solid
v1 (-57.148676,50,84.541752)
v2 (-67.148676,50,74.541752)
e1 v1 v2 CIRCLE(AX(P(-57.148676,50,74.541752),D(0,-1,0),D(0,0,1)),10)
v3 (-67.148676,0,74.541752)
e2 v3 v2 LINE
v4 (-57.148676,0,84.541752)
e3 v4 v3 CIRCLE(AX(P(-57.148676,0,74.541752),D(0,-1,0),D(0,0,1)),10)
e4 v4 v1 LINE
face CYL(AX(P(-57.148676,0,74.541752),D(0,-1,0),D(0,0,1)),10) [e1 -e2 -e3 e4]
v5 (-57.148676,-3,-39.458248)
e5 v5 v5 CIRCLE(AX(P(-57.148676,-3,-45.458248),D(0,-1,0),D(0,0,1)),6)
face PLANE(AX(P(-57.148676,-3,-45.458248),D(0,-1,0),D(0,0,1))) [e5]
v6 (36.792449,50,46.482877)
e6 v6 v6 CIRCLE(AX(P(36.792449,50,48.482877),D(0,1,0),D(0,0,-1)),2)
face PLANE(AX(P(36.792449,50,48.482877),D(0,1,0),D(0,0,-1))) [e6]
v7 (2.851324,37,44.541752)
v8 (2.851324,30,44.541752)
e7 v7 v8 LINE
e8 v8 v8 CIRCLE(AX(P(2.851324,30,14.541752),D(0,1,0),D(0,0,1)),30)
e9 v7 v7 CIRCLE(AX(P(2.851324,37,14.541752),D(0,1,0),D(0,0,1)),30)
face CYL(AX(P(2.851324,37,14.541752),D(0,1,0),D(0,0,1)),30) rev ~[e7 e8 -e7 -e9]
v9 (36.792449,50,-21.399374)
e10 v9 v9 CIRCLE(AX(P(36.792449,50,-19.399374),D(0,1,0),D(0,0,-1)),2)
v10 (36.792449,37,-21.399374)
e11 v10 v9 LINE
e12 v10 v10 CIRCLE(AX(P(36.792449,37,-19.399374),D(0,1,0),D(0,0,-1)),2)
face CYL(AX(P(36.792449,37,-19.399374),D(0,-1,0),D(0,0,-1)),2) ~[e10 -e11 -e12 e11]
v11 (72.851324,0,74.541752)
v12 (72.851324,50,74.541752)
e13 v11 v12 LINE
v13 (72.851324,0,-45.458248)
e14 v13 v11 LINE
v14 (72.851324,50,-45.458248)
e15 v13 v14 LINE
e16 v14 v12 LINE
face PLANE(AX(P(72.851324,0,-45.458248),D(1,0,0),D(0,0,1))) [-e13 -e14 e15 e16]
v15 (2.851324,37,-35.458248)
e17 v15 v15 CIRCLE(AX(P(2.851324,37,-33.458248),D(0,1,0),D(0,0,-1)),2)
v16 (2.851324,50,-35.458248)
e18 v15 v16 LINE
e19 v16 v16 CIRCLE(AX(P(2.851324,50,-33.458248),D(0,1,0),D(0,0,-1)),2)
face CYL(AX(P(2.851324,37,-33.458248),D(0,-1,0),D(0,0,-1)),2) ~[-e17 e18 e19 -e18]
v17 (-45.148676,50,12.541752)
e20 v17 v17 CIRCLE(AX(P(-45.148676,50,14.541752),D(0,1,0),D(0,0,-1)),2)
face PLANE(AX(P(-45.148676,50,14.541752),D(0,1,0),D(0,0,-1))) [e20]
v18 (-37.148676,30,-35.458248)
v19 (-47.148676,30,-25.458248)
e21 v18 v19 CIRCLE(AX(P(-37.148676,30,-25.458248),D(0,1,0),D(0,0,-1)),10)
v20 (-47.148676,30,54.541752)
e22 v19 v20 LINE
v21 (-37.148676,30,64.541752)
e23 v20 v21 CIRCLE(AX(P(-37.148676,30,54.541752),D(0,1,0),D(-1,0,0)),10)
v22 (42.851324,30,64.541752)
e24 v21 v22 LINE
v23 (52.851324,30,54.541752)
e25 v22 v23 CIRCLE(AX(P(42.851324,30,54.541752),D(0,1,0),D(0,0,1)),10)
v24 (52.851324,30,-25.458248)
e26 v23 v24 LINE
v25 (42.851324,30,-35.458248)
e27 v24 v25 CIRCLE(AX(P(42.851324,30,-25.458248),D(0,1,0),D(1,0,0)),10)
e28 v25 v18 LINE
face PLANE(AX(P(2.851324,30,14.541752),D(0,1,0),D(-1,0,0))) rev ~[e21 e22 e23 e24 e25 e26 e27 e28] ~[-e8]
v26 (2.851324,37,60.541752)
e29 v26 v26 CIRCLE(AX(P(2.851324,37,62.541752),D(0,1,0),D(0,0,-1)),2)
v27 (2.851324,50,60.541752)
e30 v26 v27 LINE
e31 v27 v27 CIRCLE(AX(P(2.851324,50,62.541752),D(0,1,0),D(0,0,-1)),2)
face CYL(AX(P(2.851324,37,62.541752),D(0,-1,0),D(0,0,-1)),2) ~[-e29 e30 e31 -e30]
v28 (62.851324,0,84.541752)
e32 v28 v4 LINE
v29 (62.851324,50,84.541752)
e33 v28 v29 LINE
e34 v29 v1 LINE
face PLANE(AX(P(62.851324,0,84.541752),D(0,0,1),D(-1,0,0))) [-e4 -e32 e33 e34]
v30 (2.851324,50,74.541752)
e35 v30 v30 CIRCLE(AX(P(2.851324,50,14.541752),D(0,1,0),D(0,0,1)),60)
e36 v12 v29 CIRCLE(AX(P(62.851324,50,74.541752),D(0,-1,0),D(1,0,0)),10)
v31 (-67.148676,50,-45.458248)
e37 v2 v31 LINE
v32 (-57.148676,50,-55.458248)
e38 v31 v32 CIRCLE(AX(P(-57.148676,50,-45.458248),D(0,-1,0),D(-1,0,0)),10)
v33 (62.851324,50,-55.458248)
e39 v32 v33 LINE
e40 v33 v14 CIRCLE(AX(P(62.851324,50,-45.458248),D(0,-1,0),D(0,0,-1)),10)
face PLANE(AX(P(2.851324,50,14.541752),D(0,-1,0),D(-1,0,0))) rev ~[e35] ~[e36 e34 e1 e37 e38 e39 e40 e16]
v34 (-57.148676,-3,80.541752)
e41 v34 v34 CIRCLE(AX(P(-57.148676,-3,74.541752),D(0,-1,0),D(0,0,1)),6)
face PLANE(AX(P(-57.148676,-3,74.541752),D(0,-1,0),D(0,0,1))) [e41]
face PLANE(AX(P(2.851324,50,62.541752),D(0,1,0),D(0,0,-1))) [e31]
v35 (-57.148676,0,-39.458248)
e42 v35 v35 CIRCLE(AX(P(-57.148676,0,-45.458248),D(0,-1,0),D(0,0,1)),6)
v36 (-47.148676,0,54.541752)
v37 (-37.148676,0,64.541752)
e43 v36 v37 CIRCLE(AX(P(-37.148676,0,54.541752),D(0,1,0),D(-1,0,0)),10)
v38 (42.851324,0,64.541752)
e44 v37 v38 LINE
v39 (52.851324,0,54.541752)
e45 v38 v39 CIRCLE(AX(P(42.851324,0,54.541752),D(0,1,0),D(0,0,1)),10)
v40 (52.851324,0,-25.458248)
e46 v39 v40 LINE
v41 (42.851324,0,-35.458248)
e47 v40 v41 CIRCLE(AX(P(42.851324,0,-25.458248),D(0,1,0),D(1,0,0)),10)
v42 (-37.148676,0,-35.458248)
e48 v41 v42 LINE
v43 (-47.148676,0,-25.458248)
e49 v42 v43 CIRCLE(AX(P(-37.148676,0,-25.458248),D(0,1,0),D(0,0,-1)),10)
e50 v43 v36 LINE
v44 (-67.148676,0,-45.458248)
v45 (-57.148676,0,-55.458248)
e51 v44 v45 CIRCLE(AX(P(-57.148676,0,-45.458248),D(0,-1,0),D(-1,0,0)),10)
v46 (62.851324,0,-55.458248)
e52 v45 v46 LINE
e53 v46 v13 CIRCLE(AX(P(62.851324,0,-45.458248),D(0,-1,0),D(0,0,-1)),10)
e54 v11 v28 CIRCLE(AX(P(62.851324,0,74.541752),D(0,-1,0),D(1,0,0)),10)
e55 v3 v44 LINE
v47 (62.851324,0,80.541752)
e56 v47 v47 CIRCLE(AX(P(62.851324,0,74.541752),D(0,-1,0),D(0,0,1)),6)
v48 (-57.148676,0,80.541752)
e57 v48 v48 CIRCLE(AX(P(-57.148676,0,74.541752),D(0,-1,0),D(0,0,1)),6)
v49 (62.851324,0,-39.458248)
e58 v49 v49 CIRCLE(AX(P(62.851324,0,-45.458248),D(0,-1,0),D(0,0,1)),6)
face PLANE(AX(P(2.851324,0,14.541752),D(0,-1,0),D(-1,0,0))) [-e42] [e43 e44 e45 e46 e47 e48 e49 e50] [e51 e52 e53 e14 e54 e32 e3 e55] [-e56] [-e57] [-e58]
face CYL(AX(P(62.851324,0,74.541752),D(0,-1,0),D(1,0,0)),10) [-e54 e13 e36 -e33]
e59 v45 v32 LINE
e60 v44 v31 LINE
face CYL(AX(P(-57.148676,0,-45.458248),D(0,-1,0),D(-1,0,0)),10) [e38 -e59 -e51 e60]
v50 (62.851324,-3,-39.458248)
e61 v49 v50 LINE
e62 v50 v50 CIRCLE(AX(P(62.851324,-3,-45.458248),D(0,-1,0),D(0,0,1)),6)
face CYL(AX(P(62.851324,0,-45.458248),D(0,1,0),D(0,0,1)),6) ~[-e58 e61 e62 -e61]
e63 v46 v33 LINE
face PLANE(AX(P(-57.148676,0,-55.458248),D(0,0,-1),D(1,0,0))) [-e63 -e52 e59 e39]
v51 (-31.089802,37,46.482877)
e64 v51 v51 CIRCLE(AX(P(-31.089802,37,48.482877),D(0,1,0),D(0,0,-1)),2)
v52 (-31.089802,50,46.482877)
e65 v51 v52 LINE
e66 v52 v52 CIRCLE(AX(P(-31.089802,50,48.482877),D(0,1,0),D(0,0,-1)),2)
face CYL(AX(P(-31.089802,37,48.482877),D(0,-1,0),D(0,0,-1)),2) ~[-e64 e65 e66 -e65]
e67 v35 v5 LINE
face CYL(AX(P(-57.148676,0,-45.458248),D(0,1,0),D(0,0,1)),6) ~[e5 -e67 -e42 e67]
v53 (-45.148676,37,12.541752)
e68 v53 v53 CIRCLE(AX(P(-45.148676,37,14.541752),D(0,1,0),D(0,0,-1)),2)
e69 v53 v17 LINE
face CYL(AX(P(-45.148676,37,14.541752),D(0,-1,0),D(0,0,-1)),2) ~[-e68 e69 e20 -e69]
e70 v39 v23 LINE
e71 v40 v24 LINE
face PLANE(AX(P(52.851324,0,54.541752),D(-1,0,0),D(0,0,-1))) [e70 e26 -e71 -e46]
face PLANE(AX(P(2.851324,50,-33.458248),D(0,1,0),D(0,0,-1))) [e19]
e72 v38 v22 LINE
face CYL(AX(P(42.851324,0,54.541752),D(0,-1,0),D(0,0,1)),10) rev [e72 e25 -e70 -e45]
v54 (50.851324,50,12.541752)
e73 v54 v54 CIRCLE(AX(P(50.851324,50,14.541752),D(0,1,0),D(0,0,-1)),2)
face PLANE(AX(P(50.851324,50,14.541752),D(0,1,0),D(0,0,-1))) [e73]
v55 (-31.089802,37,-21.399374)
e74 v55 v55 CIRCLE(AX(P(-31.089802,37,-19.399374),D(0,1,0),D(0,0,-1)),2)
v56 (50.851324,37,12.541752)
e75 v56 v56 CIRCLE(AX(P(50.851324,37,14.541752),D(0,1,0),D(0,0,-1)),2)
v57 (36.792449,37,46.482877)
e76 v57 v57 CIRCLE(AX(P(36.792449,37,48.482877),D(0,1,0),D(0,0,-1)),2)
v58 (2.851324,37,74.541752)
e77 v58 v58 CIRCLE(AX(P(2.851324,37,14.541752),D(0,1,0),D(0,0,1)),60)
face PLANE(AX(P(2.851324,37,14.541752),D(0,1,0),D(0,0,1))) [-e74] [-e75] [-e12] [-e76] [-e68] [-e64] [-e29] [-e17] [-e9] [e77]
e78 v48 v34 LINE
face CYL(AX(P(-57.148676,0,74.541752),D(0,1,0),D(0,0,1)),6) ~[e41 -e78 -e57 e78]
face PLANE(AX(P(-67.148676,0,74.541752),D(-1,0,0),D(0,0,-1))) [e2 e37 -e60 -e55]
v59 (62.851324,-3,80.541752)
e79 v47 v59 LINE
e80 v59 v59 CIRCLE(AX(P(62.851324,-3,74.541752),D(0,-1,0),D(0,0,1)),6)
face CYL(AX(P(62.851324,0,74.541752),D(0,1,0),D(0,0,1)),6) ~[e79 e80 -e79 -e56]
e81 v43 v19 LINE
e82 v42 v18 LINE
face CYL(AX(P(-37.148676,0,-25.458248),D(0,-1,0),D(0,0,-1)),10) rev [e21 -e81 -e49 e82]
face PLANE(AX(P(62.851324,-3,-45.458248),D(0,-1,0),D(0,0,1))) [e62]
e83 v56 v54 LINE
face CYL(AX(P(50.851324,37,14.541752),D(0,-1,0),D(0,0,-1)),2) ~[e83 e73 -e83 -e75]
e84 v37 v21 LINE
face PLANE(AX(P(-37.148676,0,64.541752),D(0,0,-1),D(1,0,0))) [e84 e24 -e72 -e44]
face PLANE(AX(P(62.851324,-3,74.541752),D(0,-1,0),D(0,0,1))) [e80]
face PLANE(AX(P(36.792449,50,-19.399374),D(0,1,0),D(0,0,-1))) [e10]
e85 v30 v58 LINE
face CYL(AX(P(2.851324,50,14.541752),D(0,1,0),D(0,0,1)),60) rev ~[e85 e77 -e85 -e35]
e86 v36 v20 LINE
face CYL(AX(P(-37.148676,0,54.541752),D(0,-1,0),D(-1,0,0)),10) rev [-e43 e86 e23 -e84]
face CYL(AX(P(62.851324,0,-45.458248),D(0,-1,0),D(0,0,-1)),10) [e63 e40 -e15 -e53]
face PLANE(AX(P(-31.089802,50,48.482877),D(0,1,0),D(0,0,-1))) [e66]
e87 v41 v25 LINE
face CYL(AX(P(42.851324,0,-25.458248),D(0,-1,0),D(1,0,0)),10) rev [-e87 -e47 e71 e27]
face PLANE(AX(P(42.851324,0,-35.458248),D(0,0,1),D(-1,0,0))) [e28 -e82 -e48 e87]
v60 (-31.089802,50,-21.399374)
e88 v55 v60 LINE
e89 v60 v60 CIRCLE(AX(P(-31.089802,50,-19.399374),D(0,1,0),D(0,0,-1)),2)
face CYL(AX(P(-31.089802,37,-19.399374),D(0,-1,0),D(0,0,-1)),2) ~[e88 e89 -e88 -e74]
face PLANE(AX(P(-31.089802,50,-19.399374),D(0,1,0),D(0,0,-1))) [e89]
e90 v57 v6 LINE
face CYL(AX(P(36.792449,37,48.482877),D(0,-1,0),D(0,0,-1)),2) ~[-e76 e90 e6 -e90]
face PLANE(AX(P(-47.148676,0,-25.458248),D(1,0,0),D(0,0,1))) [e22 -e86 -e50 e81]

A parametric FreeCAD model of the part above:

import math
import FreeCAD as App
import Part
import Sketcher

V = App.Vector

doc = App.newDocument("Part")
body = doc.addObject("PartDesign::Body", "Body")

sketch1 = body.newObject("Sketcher::SketchObject", "Sketch")
sketch1.AttachmentSupport = (doc.getObject("XZ_Plane"), [""])
sketch1.MapMode = "FlatFace"
sketch1.addGeometry([
    Part.LineSegment(V(63, -55, 0), V(-57, -55, 0)),
    Part.ArcOfCircle(Part.Circle(V(-57, -45, 0), V(0, 0, 1), 10), math.radians(-180), math.radians(-90)),
    Part.LineSegment(V(-67, -45, 0), V(-67, 75, 0)),
    Part.ArcOfCircle(Part.Circle(V(-57, 75, 0), V(0, 0, 1), 10), math.radians(90), math.radians(180)),
    Part.LineSegment(V(-57, 85, 0), V(63, 85, 0)),
    Part.ArcOfCircle(Part.Circle(V(63, 75, 0), V(0, 0, 1), 10), math.radians(0), math.radians(90)),
    Part.LineSegment(V(73, 75, 0), V(73, -45, 0)),
    Part.ArcOfCircle(Part.Circle(V(63, -45, 0), V(0, 0, 1), 10), math.radians(-90), math.radians(0)),
], False)
sketch1.addConstraint([
    Sketcher.Constraint("Tangent", 0, 2, 1, 2),
    Sketcher.Constraint("Tangent", 1, 1, 2, 1),
    Sketcher.Constraint("Tangent", 2, 2, 3, 2),
    Sketcher.Constraint("Tangent", 3, 1, 4, 1),
    Sketcher.Constraint("Tangent", 4, 2, 5, 2),
    Sketcher.Constraint("Tangent", 5, 1, 6, 1),
    Sketcher.Constraint("Tangent", 6, 2, 7, 2),
    Sketcher.Constraint("Tangent", 7, 1, 0, 1),
    Sketcher.Constraint("Horizontal", 0),
    Sketcher.Constraint("Vertical", 2),
    Sketcher.Constraint("Horizontal", 4),
    Sketcher.Constraint("Vertical", 6),
    Sketcher.Constraint("Equal", 1, 3),
    Sketcher.Constraint("Equal", 3, 5),
    Sketcher.Constraint("Equal", 5, 7),
    Sketcher.Constraint("Equal", 4, 2),
    Sketcher.Constraint("Radius", 1, 10.0),
    Sketcher.Constraint("DistanceX", 0, 2, 0, 1, 120.0),
    Sketcher.Constraint("DistanceY", 1, 3, -1, 1, 45.458248),
    Sketcher.Constraint("DistanceX", 1, 3, -1, 1, 57.148676),
])
pad1 = body.newObject("PartDesign::Pad", "Pad")
pad1.Profile = sketch1
pad1.Length = 50
pad1.Reversed = True

sketch2 = body.newObject("Sketcher::SketchObject", "Sketch001")
sketch2.AttachmentSupport = (doc.getObject("XZ_Plane"), [""])
sketch2.MapMode = "FlatFace"
sketch2.AttachmentOffset = App.Placement(V(0, 0, -50), App.Rotation())
sketch2.addGeometry(Part.Circle(V(3, 15, 0), V(0, 0, 1), 60), False)
sketch2.addConstraint([
    Sketcher.Constraint("Diameter", 0, 120.0),
    Sketcher.Constraint("DistanceY", -1, 1, 0, 3, 14.541752),
    Sketcher.Constraint("DistanceX", -1, 1, 0, 3, 2.851324),
])
pocket1 = body.newObject("PartDesign::Pocket", "Pocket")
pocket1.Profile = sketch2
pocket1.Length = 13
pocket1.Reversed = True

sketch3 = body.newObject("Sketcher::SketchObject", "Sketch002")
sketch3.AttachmentSupport = (doc.getObject("XZ_Plane"), [""])
sketch3.MapMode = "FlatFace"
sketch3.AttachmentOffset = App.Placement(V(0, 0, -37), App.Rotation())
sketch3.addGeometry(Part.Circle(V(3, 15, 0), V(0, 0, 1), 10), False)
sketch3.addConstraint([
    Sketcher.Constraint("Diameter", 0, 20.0),
    Sketcher.Constraint("DistanceY", -1, 1, 0, 3, 14.541752),
    Sketcher.Constraint("DistanceX", -1, 1, 0, 3, 2.851324),
])
pocket2 = body.newObject("PartDesign::Pocket", "Pocket001")
pocket2.Profile = sketch3
pocket2.Length = 50
pocket2.Reversed = True

sketch4 = body.newObject("Sketcher::SketchObject", "Sketch003")
sketch4.AttachmentSupport = (doc.getObject("XZ_Plane"), [""])
sketch4.MapMode = "FlatFace"
sketch4.AttachmentOffset = App.Placement(V(0, 0, -37), App.Rotation())
sketch4.addGeometry([
    Part.Circle(V(2.9, -33.5, 0), V(0, 0, 1), 2),
    Part.Circle(V(36.8, -19.4, 0), V(0, 0, 1), 2),
    Part.Circle(V(50.9, 14.5, 0), V(0, 0, 1), 2),
    Part.Circle(V(36.8, 48.5, 0), V(0, 0, 1), 2),
    Part.Circle(V(2.9, 62.5, 0), V(0, 0, 1), 2),
    Part.Circle(V(-31.1, 48.5, 0), V(0, 0, 1), 2),
    Part.Circle(V(-45.1, 14.5, 0), V(0, 0, 1), 2),
    Part.Circle(V(-31.1, -19.4, 0), V(0, 0, 1), 2),
], False)
sketch4.addConstraint([
    Sketcher.Constraint("Equal", 0, 1),
    Sketcher.Constraint("Equal", 1, 2),
    Sketcher.Constraint("Equal", 2, 3),
    Sketcher.Constraint("Equal", 3, 4),
    Sketcher.Constraint("Equal", 4, 5),
    Sketcher.Constraint("Equal", 5, 6),
    Sketcher.Constraint("Equal", 6, 7),
    Sketcher.Constraint("Horizontal", 3, 3, 5, 3),
    Sketcher.Constraint("Horizontal", 2, 3, 6, 3),
    Sketcher.Constraint("Horizontal", 1, 3, 7, 3),
    Sketcher.Constraint("Vertical", 1, 3, 3, 3),
    Sketcher.Constraint("Vertical", 0, 3, 4, 3),
    Sketcher.Constraint("Vertical", 5, 3, 7, 3),
    Sketcher.Constraint("Diameter", 0, 4.0),
    Sketcher.Constraint("DistanceX", 0, 3, 2, 3, 48.0),
    Sketcher.Constraint("DistanceY", 0, 3, 2, 3, 48.0),
    Sketcher.Constraint("DistanceY", 2, 3, 4, 3, 48.0),
    Sketcher.Constraint("DistanceX", 6, 3, 0, 3, 48.0),
    Sketcher.Constraint("DistanceX", 5, 3, -1, 1, 31.089802),
    Sketcher.Constraint("DistanceY", 0, 3, -1, 1, 33.458248),
    Sketcher.Constraint("DistanceX", -1, 1, 1, 3, 36.792449),
    Sketcher.Constraint("DistanceY", 1, 3, 3, 3, 67.882251),
    Sketcher.Constraint("DistanceX", -1, 1, 0, 3, 2.851324),
    Sketcher.Constraint("DistanceY", 1, 3, -1, 1, 19.399374),
])
pad2 = body.newObject("PartDesign::Pad", "Pad001")
pad2.Profile = sketch4
pad2.Length = 13
pad2.Reversed = True

sketch5 = body.newObject("Sketcher::SketchObject", "Sketch004")
sketch5.AttachmentSupport = (doc.getObject("XZ_Plane"), [""])
sketch5.MapMode = "FlatFace"
sketch5.addGeometry([
    Part.LineSegment(V(43, 65, 0), V(-37, 65, 0)),
    Part.ArcOfCircle(Part.Circle(V(-37, 55, 0), V(0, 0, 1), 10), math.radians(90), math.radians(180)),
    Part.LineSegment(V(-47, 55, 0), V(-47, -25, 0)),
    Part.ArcOfCircle(Part.Circle(V(-37, -25, 0), V(0, 0, 1), 10), math.radians(-180), math.radians(-90)),
    Part.LineSegment(V(-37, -35, 0), V(43, -35, 0)),
    Part.ArcOfCircle(Part.Circle(V(43, -25, 0), V(0, 0, 1), 10), math.radians(-90), math.radians(0)),
    Part.LineSegment(V(53, -25, 0), V(53, 55, 0)),
    Part.ArcOfCircle(Part.Circle(V(43, 55, 0), V(0, 0, 1), 10), math.radians(0), math.radians(90)),
], False)
sketch5.addConstraint([
    Sketcher.Constraint("Tangent", 0, 2, 1, 1),
    Sketcher.Constraint("Tangent", 1, 2, 2, 1),
    Sketcher.Constraint("Tangent", 2, 2, 3, 1),
    Sketcher.Constraint("Tangent", 3, 2, 4, 1),
    Sketcher.Constraint("Tangent", 4, 2, 5, 1),
    Sketcher.Constraint("Tangent", 5, 2, 6, 1),
    Sketcher.Constraint("Tangent", 6, 2, 7, 1),
    Sketcher.Constraint("Tangent", 7, 2, 0, 1),
    Sketcher.Constraint("Horizontal", 0),
    Sketcher.Constraint("Vertical", 2),
    Sketcher.Constraint("Horizontal", 4),
    Sketcher.Constraint("Vertical", 6),
    Sketcher.Constraint("Equal", 1, 3),
    Sketcher.Constraint("Equal", 3, 5),
    Sketcher.Constraint("Equal", 5, 7),
    Sketcher.Constraint("Equal", 4, 2),
    Sketcher.Constraint("Radius", 1, 10.0),
    Sketcher.Constraint("DistanceX", 0, 2, 0, 1, 80.0),
    Sketcher.Constraint("DistanceY", -1, 1, 1, 3, 54.541752),
    Sketcher.Constraint("DistanceX", 1, 3, -1, 1, 37.148676),
])
pocket3 = body.newObject("PartDesign::Pocket", "Pocket002")
pocket3.Profile = sketch5
pocket3.Length = 30

sketch6 = body.newObject("Sketcher::SketchObject", "Sketch005")
sketch6.AttachmentSupport = (doc.getObject("XZ_Plane"), [""])
sketch6.MapMode = "FlatFace"
sketch6.addGeometry([
    Part.Circle(V(-57, 75, 0), V(0, 0, 1), 6),
    Part.Circle(V(63, 75, 0), V(0, 0, 1), 6),
    Part.Circle(V(63, -45, 0), V(0, 0, 1), 6),
    Part.Circle(V(-57, -45, 0), V(0, 0, 1), 6),
], False)
sketch6.addConstraint([
    Sketcher.Constraint("Equal", 0, 1),
    Sketcher.Constraint("Equal", 1, 2),
    Sketcher.Constraint("Equal", 2, 3),
    Sketcher.Constraint("Horizontal", 0, 3, 1, 3),
    Sketcher.Constraint("Horizontal", 2, 3, 3, 3),
    Sketcher.Constraint("Vertical", 1, 3, 2, 3),
    Sketcher.Constraint("Vertical", 0, 3, 3, 3),
    Sketcher.Constraint("Diameter", 0, 12.0),
    Sketcher.Constraint("DistanceX", 0, 3, 1, 3, 120.0),
    Sketcher.Constraint("DistanceY", 2, 3, 1, 3, 120.0),
    Sketcher.Constraint("DistanceY", -1, 1, 0, 3, 74.541752),
    Sketcher.Constraint("DistanceX", 0, 3, -1, 1, 57.148676),
])
pad3 = body.newObject("PartDesign::Pad", "Pad002")
pad3.Profile = sketch6
pad3.Length = 3

sketch7 = body.newObject("Sketcher::SketchObject", "Sketch006")
sketch7.AttachmentSupport = (doc.getObject("XZ_Plane"), [""])
sketch7.MapMode = "FlatFace"
sketch7.AttachmentOffset = App.Placement(V(0, 0, -37), App.Rotation())
sketch7.addGeometry(Part.Circle(V(3, 15, 0), V(0, 0, 1), 30), False)
sketch7.addConstraint([
    Sketcher.Constraint("Diameter", 0, 60.0),
    Sketcher.Constraint("DistanceY", -1, 1, 0, 3, 14.541752),
    Sketcher.Constraint("DistanceX", -1, 1, 0, 3, 2.851324),
])
pocket4 = body.newObject("PartDesign::Pocket", "Pocket003")
pocket4.Profile = sketch7
pocket4.Length = 40
pocket4.Reversed = True

doc.recompute()
